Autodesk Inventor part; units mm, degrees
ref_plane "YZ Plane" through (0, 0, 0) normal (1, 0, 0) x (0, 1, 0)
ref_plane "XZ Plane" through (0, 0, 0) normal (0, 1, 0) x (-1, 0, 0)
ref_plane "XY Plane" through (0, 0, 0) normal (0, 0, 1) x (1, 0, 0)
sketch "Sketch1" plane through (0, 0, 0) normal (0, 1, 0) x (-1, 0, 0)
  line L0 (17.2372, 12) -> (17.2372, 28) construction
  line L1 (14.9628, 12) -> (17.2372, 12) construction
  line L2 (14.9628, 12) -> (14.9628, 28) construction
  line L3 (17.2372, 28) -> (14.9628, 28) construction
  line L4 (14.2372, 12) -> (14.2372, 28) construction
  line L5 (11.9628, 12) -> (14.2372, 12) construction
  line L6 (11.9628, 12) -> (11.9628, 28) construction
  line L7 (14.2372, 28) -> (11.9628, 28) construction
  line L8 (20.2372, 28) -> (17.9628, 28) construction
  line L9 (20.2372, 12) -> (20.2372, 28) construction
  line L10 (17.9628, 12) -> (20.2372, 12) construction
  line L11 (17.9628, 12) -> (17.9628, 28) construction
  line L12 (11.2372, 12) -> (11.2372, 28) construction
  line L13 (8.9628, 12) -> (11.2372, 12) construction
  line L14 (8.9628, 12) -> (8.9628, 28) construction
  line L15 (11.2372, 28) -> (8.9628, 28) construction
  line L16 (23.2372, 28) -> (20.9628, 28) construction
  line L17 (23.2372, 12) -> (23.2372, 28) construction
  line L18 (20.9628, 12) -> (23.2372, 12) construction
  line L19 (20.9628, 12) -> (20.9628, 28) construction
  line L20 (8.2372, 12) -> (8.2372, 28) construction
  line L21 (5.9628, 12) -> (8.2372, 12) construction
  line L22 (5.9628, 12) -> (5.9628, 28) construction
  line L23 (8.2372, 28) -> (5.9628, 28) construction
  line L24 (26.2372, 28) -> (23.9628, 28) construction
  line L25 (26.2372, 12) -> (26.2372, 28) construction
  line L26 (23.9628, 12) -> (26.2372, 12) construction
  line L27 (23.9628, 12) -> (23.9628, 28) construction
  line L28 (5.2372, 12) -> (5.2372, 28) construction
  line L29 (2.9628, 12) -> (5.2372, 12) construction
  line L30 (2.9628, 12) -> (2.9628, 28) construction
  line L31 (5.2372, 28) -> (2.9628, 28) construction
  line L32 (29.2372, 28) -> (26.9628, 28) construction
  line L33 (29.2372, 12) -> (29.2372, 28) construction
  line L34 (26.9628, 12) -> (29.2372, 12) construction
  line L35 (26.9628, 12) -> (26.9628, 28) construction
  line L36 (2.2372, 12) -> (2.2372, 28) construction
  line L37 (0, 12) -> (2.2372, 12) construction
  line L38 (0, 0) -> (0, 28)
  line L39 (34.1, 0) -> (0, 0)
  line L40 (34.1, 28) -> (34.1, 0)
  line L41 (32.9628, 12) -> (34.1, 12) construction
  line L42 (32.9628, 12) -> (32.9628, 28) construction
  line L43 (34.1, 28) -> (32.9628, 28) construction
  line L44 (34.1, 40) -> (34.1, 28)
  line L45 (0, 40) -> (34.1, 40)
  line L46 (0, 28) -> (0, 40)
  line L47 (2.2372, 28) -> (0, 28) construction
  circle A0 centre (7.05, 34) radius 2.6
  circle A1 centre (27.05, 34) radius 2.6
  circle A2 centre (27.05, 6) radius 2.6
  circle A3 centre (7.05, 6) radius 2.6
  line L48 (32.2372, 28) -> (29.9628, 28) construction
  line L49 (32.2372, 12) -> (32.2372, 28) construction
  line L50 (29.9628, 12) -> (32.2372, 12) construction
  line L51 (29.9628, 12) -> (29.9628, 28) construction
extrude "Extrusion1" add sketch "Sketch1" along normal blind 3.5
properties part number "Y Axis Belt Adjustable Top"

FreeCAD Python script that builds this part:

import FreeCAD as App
import Part
import Sketcher
Q = App.Units.Quantity

doc = App.newDocument("Part")
body = doc.addObject("PartDesign::Body", "Body")

# Sketch on XZ plane
sketch1 = body.newObject("Sketcher::SketchObject", "Sketch")
sketch1.AttachmentSupport = (doc.getObject("XZ_Plane"), [""])
sketch1.MapMode = "FlatFace"
sketch1.addGeometry(Part.LineSegment(App.Vector(0, 40, 0), App.Vector(0, 0, 0)), False)
sketch1.addGeometry(Part.LineSegment(App.Vector(0, 0, 0), App.Vector(-34.1, 0, 0)), False)
sketch1.addGeometry(Part.LineSegment(App.Vector(-34.1, 0, 0), App.Vector(-34.1, 40, 0)), False)
sketch1.addGeometry(Part.LineSegment(App.Vector(-34.1, 40, 0), App.Vector(0, 40, 0)), False)
sketch1.addGeometry(Part.Circle(App.Vector(-7.05, 6, 0), App.Vector(0, 0, 1), 2.6), False)
sketch1.addGeometry(Part.Circle(App.Vector(-27.05, 6, 0), App.Vector(0, 0, 1), 2.6), False)
sketch1.addGeometry(Part.Circle(App.Vector(-7.05, 34, 0), App.Vector(0, 0, 1), 2.6), False)
sketch1.addGeometry(Part.Circle(App.Vector(-27.05, 34, 0), App.Vector(0, 0, 1), 2.6), False)
sketch1.addConstraint(Sketcher.Constraint("Coincident", 0, 2, 1, 1))
sketch1.addConstraint(Sketcher.Constraint("Coincident", 1, 2, 2, 1))
sketch1.addConstraint(Sketcher.Constraint("Coincident", 2, 2, 3, 1))
sketch1.addConstraint(Sketcher.Constraint("Coincident", 3, 2, 0, 1))
sketch1.addConstraint(Sketcher.Constraint("Vertical", 0))
sketch1.addConstraint(Sketcher.Constraint("Horizontal", 1))
sketch1.addConstraint(Sketcher.Constraint("Vertical", 2))
sketch1.addConstraint(Sketcher.Constraint("Horizontal", 3))
sketch1.addConstraint(Sketcher.Constraint("Coincident", 0, 2, -1, 1))
sketch1.addConstraint(Sketcher.Constraint("Equal", 4, 5))
sketch1.addConstraint(Sketcher.Constraint("Equal", 5, 6))
sketch1.addConstraint(Sketcher.Constraint("Equal", 6, 7))
sketch1.addConstraint(Sketcher.Constraint("Horizontal", 4, 3, 5, 3))
sketch1.addConstraint(Sketcher.Constraint("Horizontal", 6, 3, 7, 3))
sketch1.addConstraint(Sketcher.Constraint("Vertical", 4, 3, 6, 3))
sketch1.addConstraint(Sketcher.Constraint("Vertical", 5, 3, 7, 3))
sketch1.addConstraint(Sketcher.Constraint("Diameter", 4, Q("5.2 mm")))
sketch1.addConstraint(Sketcher.Constraint("DistanceY", 0, 2, 0, 1, Q("40 mm")))
sketch1.addConstraint(Sketcher.Constraint("DistanceX", 1, 2, 1, 1, Q("34.1 mm")))
sketch1.addConstraint(Sketcher.Constraint("DistanceY", -1, 1, 4, 3, Q("6 mm")))
sketch1.addConstraint(Sketcher.Constraint("DistanceY", -1, 1, 6, 3, Q("34 mm")))
sketch1.addConstraint(Sketcher.Constraint("DistanceX", 5, 3, 4, 3, Q("20 mm")))
sketch1.addConstraint(Sketcher.Constraint("DistanceX", 4, 3, -1, 1, Q("7.05 mm")))
pad1 = body.newObject("PartDesign::Pad", "Pad")
pad1.Profile = sketch1
pad1.Length = 3.5
pad1.Reversed = True

doc.recompute()
